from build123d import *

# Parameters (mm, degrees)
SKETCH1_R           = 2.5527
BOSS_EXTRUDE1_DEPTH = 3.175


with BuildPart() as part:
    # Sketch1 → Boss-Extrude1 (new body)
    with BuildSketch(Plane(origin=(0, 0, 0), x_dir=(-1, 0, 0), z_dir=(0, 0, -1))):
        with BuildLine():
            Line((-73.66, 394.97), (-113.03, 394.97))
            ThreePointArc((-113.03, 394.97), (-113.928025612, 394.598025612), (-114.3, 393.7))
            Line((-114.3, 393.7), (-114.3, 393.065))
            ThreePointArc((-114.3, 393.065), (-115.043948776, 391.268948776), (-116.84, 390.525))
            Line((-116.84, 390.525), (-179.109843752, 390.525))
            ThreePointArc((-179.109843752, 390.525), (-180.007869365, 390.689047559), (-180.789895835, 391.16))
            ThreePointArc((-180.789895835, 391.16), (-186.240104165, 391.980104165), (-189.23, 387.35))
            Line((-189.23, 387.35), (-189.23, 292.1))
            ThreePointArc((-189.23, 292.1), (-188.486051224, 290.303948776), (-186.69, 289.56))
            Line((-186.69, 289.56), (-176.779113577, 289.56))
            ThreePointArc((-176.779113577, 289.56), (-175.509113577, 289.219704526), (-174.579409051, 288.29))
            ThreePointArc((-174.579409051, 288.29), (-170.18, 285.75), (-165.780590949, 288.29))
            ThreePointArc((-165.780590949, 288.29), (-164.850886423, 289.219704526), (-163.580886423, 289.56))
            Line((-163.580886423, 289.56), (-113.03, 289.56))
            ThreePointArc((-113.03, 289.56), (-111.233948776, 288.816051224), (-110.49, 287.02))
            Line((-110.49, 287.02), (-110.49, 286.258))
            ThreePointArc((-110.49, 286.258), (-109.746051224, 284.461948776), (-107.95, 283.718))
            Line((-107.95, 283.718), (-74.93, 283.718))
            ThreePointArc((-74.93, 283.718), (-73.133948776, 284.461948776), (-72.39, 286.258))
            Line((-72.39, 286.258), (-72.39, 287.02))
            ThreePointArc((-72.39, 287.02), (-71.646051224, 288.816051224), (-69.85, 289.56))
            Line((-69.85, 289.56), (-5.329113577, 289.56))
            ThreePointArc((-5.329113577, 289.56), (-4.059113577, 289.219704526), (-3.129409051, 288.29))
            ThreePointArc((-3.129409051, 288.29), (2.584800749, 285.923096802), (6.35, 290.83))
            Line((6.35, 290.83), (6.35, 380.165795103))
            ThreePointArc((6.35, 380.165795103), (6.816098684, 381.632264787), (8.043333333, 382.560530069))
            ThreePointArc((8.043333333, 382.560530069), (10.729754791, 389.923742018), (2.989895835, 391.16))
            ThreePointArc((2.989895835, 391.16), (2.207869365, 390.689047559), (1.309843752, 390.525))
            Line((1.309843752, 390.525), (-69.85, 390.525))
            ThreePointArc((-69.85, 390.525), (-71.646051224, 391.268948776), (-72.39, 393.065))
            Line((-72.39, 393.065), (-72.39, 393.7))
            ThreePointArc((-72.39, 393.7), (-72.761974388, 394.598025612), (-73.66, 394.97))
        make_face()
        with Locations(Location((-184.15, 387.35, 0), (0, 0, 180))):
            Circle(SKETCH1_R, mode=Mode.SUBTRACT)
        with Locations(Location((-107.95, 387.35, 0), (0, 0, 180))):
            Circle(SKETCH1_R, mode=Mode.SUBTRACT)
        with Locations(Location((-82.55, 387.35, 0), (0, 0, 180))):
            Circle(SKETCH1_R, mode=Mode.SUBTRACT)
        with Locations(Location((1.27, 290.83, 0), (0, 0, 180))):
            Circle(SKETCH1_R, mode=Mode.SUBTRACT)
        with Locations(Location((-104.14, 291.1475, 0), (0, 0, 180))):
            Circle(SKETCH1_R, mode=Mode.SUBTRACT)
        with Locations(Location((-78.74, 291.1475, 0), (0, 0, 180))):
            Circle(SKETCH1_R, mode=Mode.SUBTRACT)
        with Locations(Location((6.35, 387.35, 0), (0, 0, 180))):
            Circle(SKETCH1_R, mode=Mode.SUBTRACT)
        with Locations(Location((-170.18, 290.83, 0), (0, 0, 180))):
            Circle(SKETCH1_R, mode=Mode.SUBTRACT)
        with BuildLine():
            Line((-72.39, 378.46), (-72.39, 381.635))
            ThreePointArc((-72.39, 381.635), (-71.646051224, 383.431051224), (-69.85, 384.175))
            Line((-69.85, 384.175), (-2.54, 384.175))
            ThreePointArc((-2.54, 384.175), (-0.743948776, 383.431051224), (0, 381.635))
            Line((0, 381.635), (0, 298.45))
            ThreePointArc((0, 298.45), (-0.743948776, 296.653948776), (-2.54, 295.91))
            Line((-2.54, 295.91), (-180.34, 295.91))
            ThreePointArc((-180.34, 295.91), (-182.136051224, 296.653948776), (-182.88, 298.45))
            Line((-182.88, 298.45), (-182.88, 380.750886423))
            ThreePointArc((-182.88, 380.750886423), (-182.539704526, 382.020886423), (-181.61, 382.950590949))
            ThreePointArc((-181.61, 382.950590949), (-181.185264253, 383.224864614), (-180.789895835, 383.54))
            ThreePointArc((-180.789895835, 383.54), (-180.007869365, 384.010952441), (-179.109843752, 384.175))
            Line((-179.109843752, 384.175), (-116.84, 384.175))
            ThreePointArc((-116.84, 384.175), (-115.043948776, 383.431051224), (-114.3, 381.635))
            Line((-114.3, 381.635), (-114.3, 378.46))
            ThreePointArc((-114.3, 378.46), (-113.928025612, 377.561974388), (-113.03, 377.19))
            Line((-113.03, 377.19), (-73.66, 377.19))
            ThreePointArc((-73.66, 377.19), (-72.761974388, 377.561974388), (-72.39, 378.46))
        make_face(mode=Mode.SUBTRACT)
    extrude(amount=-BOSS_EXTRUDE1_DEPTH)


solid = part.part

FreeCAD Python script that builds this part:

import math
import FreeCAD as App
import Part
import Sketcher
Q = App.Units.Quantity

doc = App.newDocument("Part")
body = doc.addObject("PartDesign::Body", "Body")

# Sketch on XY plane
sketch1 = body.newObject("Sketcher::SketchObject", "Sketch")
sketch1.AttachmentSupport = (doc.getObject("XY_Plane"), [""])
sketch1.MapMode = "FlatFace"
sketch1.addGeometry([
    Part.LineSegment(App.Vector(73.7, 395, 0), App.Vector(113, 395, 0)),  # 0
    Part.ArcOfCircle(Part.Circle(App.Vector(113, 393.7, 0), App.Vector(0, 0, 1), 1.3), math.radians(0), math.radians(90)),  # 1
    Part.LineSegment(App.Vector(114.3, 393.7, 0), App.Vector(114.3, 393.1, 0)),  # 2
    Part.ArcOfCircle(Part.Circle(App.Vector(116.8, 393.1, 0), App.Vector(0, 0, 1), 2.5), math.radians(-180), math.radians(-90)),  # 3
    Part.LineSegment(App.Vector(116.8, 390.5, 0), App.Vector(179.1, 390.5, 0)),  # 4
    Part.ArcOfCircle(Part.Circle(App.Vector(179.1, 393.1, 0), App.Vector(0, 0, 1), 2.5), math.radians(-90), math.radians(-49)),  # 5
    Part.ArcOfCircle(Part.Circle(App.Vector(184.2, 387.4, 0), App.Vector(0, 0, 1), 5.1), math.radians(0), math.radians(131)),  # 6
    Part.LineSegment(App.Vector(189.2, 387.4, 0), App.Vector(189.2, 292.1, 0)),  # 7
    Part.ArcOfCircle(Part.Circle(App.Vector(186.7, 292.1, 0), App.Vector(0, 0, 1), 2.5), math.radians(-90), math.radians(0)),  # 8
    Part.LineSegment(App.Vector(186.7, 289.6, 0), App.Vector(176.8, 289.6, 0)),  # 9
    Part.ArcOfCircle(Part.Circle(App.Vector(176.8, 287, 0), App.Vector(0, 0, 1), 2.5), math.radians(90), math.radians(150)),  # 10
    Part.ArcOfCircle(Part.Circle(App.Vector(170.2, 290.8, 0), App.Vector(0, 0, 1), 5.1), math.radians(-150), math.radians(-30)),  # 11
    Part.ArcOfCircle(Part.Circle(App.Vector(163.6, 287, 0), App.Vector(0, 0, 1), 2.5), math.radians(30), math.radians(90)),  # 12
    Part.LineSegment(App.Vector(163.6, 289.6, 0), App.Vector(113, 289.6, 0)),  # 13
    Part.ArcOfCircle(Part.Circle(App.Vector(113, 287, 0), App.Vector(0, 0, 1), 2.5), math.radians(90), math.radians(180)),  # 14
    Part.LineSegment(App.Vector(110.5, 287, 0), App.Vector(110.5, 286.3, 0)),  # 15
    Part.ArcOfCircle(Part.Circle(App.Vector(107.9, 286.3, 0), App.Vector(0, 0, 1), 2.5), math.radians(-90), math.radians(0)),  # 16
    Part.LineSegment(App.Vector(108, 283.7, 0), App.Vector(74.9, 283.7, 0)),  # 17
    Part.ArcOfCircle(Part.Circle(App.Vector(74.9, 286.3, 0), App.Vector(0, 0, 1), 2.5), math.radians(-180), math.radians(-90)),  # 18
    Part.LineSegment(App.Vector(72.4, 286.3, 0), App.Vector(72.4, 287, 0)),  # 19
    Part.ArcOfCircle(Part.Circle(App.Vector(69.8, 287, 0), App.Vector(0, 0, 1), 2.5), math.radians(0), math.radians(90)),  # 20
    Part.LineSegment(App.Vector(69.8, 289.6, 0), App.Vector(5.3, 289.6, 0)),  # 21
    Part.ArcOfCircle(Part.Circle(App.Vector(5.3, 287, 0), App.Vector(0, 0, 1), 2.5), math.radians(90), math.radians(150)),  # 22
    Part.ArcOfCircle(Part.Circle(App.Vector(-1.3, 290.8, 0), App.Vector(0, 0, 1), 5.1), math.radians(180), math.radians(330)),  # 23
    Part.LineSegment(App.Vector(-6.3, 290.8, 0), App.Vector(-6.3, 380.2, 0)),  # 24
    Part.ArcOfCircle(Part.Circle(App.Vector(-8.9, 380.2, 0), App.Vector(0, 0, 1), 2.5), math.radians(0), math.radians(71)),  # 25
    Part.ArcOfCircle(Part.Circle(App.Vector(-6.3, 387.4, 0), App.Vector(0, 0, 1), 5.1), math.radians(49), math.radians(251)),  # 26
    Part.ArcOfCircle(Part.Circle(App.Vector(-1.3, 393.1, 0), App.Vector(0, 0, 1), 2.5), math.radians(-131), math.radians(-90)),  # 27
    Part.LineSegment(App.Vector(-1.3, 390.5, 0), App.Vector(69.8, 390.5, 0)),  # 28
    Part.ArcOfCircle(Part.Circle(App.Vector(69.8, 393.1, 0), App.Vector(0, 0, 1), 2.5), math.radians(-90), math.radians(0)),  # 29
    Part.LineSegment(App.Vector(72.4, 393.1, 0), App.Vector(72.4, 393.7, 0)),  # 30
    Part.ArcOfCircle(Part.Circle(App.Vector(73.7, 393.7, 0), App.Vector(0, 0, 1), 1.3), math.radians(90), math.radians(180)),  # 31
    Part.Circle(App.Vector(170.2, 290.8, 0), App.Vector(0, 0, 1), 2.6),  # 32
    Part.Circle(App.Vector(104.1, 291.1, 0), App.Vector(0, 0, 1), 2.6),  # 33
    Part.Circle(App.Vector(78.7, 291.1, 0), App.Vector(0, 0, 1), 2.6),  # 34
    Part.Circle(App.Vector(-1.3, 290.8, 0), App.Vector(0, 0, 1), 2.6),  # 35
    Part.ArcOfCircle(Part.Circle(App.Vector(73.7, 378.5, 0), App.Vector(0, 0, 1), 1.3), math.radians(180), math.radians(270)),  # 36
    Part.LineSegment(App.Vector(72.4, 378.5, 0), App.Vector(72.4, 381.6, 0)),  # 37
    Part.ArcOfCircle(Part.Circle(App.Vector(69.8, 381.6, 0), App.Vector(0, 0, 1), 2.5), math.radians(0), math.radians(90)),  # 38
    Part.LineSegment(App.Vector(69.8, 384.2, 0), App.Vector(2.5, 384.2, 0)),  # 39
    Part.ArcOfCircle(Part.Circle(App.Vector(2.5, 381.6, 0), App.Vector(0, 0, 1), 2.5), math.radians(90), math.radians(180)),  # 40
    Part.LineSegment(App.Vector(0, 381.6, 0), App.Vector(0, 298.4, 0)),  # 41
    Part.ArcOfCircle(Part.Circle(App.Vector(2.5, 298.5, 0), App.Vector(0, 0, 1), 2.5), math.radians(-180), math.radians(-90)),  # 42
    Part.LineSegment(App.Vector(2.5, 295.9, 0), App.Vector(180.3, 295.9, 0)),  # 43
    Part.ArcOfCircle(Part.Circle(App.Vector(180.3, 298.5, 0), App.Vector(0, 0, 1), 2.5), math.radians(-90), math.radians(0)),  # 44
    Part.LineSegment(App.Vector(182.9, 298.4, 0), App.Vector(182.9, 380.8, 0)),  # 45
    Part.ArcOfCircle(Part.Circle(App.Vector(180.3, 380.8, 0), App.Vector(0, 0, 1), 2.5), math.radians(0), math.radians(60)),  # 46
    Part.ArcOfCircle(Part.Circle(App.Vector(184.1, 387.3, 0), App.Vector(0, 0, 1), 5.1), math.radians(-131.41), math.radians(-120)),  # 47
    Part.ArcOfCircle(Part.Circle(App.Vector(179.1, 381.6, 0), App.Vector(0, 0, 1), 2.5), math.radians(49), math.radians(90)),  # 48
    Part.LineSegment(App.Vector(179.1, 384.2, 0), App.Vector(116.8, 384.2, 0)),  # 49
    Part.ArcOfCircle(Part.Circle(App.Vector(116.8, 381.6, 0), App.Vector(0, 0, 1), 2.5), math.radians(90), math.radians(180)),  # 50
    Part.LineSegment(App.Vector(114.3, 381.6, 0), App.Vector(114.3, 378.5, 0)),  # 51
    Part.ArcOfCircle(Part.Circle(App.Vector(113, 378.5, 0), App.Vector(0, 0, 1), 1.3), math.radians(-90), math.radians(0)),  # 52
    Part.LineSegment(App.Vector(113, 377.2, 0), App.Vector(73.7, 377.2, 0)),  # 53
    Part.Circle(App.Vector(184.2, 387.4, 0), App.Vector(0, 0, 1), 2.6),  # 54
    Part.Circle(App.Vector(108, 387.4, 0), App.Vector(0, 0, 1), 2.6),  # 55
    Part.Circle(App.Vector(82.5, 387.4, 0), App.Vector(0, 0, 1), 2.6),  # 56
    Part.Circle(App.Vector(-6.3, 387.4, 0), App.Vector(0, 0, 1), 2.6),  # 57
], False)
sketch1.addConstraint([
    Sketcher.Constraint("Tangent", 0, 2, 1, 2),
    Sketcher.Constraint("Tangent", 1, 1, 2, 1),
    Sketcher.Constraint("Tangent", 2, 2, 3, 1),
    Sketcher.Constraint("Tangent", 3, 2, 4, 1),
    Sketcher.Constraint("Tangent", 4, 2, 5, 1),
    Sketcher.Constraint("Tangent", 5, 2, 6, 2),
    Sketcher.Constraint("Tangent", 6, 1, 7, 1),
    Sketcher.Constraint("Tangent", 7, 2, 8, 2),
    Sketcher.Constraint("Tangent", 8, 1, 9, 1),
    Sketcher.Constraint("Tangent", 9, 2, 10, 1),
    Sketcher.Constraint("Tangent", 10, 2, 11, 2),
    Sketcher.Constraint("Tangent", 11, 1, 12, 1),
    Sketcher.Constraint("Tangent", 12, 2, 13, 1),
    Sketcher.Constraint("Tangent", 13, 2, 14, 1),
    Sketcher.Constraint("Tangent", 14, 2, 15, 1),
    Sketcher.Constraint("Tangent", 15, 2, 16, 2),
    Sketcher.Constraint("Tangent", 16, 1, 17, 1),
    Sketcher.Constraint("Tangent", 17, 2, 18, 2),
    Sketcher.Constraint("Tangent", 18, 1, 19, 1),
    Sketcher.Constraint("Tangent", 19, 2, 20, 1),
    Sketcher.Constraint("Tangent", 20, 2, 21, 1),
    Sketcher.Constraint("Tangent", 21, 2, 22, 1),
    Sketcher.Constraint("Tangent", 22, 2, 23, 2),
    Sketcher.Constraint("Tangent", 23, 1, 24, 1),
    Sketcher.Constraint("Tangent", 24, 2, 25, 1),
    Sketcher.Constraint("Tangent", 25, 2, 26, 2),
    Sketcher.Constraint("Tangent", 26, 1, 27, 1),
    Sketcher.Constraint("Tangent", 27, 2, 28, 1),
    Sketcher.Constraint("Tangent", 28, 2, 29, 1),
    Sketcher.Constraint("Tangent", 29, 2, 30, 1),
    Sketcher.Constraint("Tangent", 30, 2, 31, 2),
    Sketcher.Constraint("Tangent", 31, 1, 0, 1),
    Sketcher.Constraint("Tangent", 36, 1, 37, 1),
    Sketcher.Constraint("Tangent", 37, 2, 38, 1),
    Sketcher.Constraint("Tangent", 38, 2, 39, 1),
    Sketcher.Constraint("Tangent", 39, 2, 40, 1),
    Sketcher.Constraint("Tangent", 40, 2, 41, 1),
    Sketcher.Constraint("Tangent", 41, 2, 42, 1),
    Sketcher.Constraint("Tangent", 42, 2, 43, 1),
    Sketcher.Constraint("Tangent", 43, 2, 44, 1),
    Sketcher.Constraint("Tangent", 44, 2, 45, 1),
    Sketcher.Constraint("Tangent", 45, 2, 46, 1),
    Sketcher.Constraint("Tangent", 46, 2, 47, 2),
    Sketcher.Constraint("Tangent", 47, 1, 48, 1),
    Sketcher.Constraint("Tangent", 48, 2, 49, 1),
    Sketcher.Constraint("Tangent", 49, 2, 50, 1),
    Sketcher.Constraint("Tangent", 50, 2, 51, 1),
    Sketcher.Constraint("Tangent", 51, 2, 52, 2),
    Sketcher.Constraint("Tangent", 52, 1, 53, 1),
    Sketcher.Constraint("Tangent", 53, 2, 36, 2),
    Sketcher.Constraint("Horizontal", 0),
    Sketcher.Constraint("Vertical", 2),
    Sketcher.Constraint("Horizontal", 4),
    Sketcher.Constraint("Vertical", 7),
    Sketcher.Constraint("Horizontal", 9),
    Sketcher.Constraint("Horizontal", 13),
    Sketcher.Constraint("Vertical", 15),
    Sketcher.Constraint("Horizontal", 17),
    Sketcher.Constraint("Vertical", 19),
    Sketcher.Constraint("Horizontal", 21),
    Sketcher.Constraint("Vertical", 24),
    Sketcher.Constraint("Horizontal", 28),
    Sketcher.Constraint("Vertical", 30),
    Sketcher.Constraint("Vertical", 37),
    Sketcher.Constraint("Horizontal", 39),
    Sketcher.Constraint("Vertical", 41),
    Sketcher.Constraint("Horizontal", 43),
    Sketcher.Constraint("Vertical", 45),
    Sketcher.Constraint("Horizontal", 49),
    Sketcher.Constraint("Vertical", 51),
    Sketcher.Constraint("Horizontal", 53),
    Sketcher.Constraint("Coincident", 32, 3, 11, 3),
    Sketcher.Constraint("Coincident", 35, 3, 23, 3),
    Sketcher.Constraint("Coincident", 47, 3, 6, 3),
    Sketcher.Constraint("Coincident", 54, 3, 6, 3),
    Sketcher.Constraint("Coincident", 57, 3, 26, 3),
    Sketcher.Constraint("Equal", 3, 5),
    Sketcher.Constraint("Equal", 5, 8),
    Sketcher.Constraint("Equal", 8, 10),
    Sketcher.Constraint("Equal", 6, 11),
    Sketcher.Constraint("Equal", 10, 12),
    Sketcher.Constraint("Equal", 12, 14),
    Sketcher.Constraint("Equal", 14, 16),
    Sketcher.Constraint("Equal", 16, 18),
    Sketcher.Constraint("Equal", 18, 20),
    Sketcher.Constraint("Equal", 20, 22),
    Sketcher.Constraint("Equal", 11, 23),
    Sketcher.Constraint("Equal", 22, 25),
    Sketcher.Constraint("Equal", 23, 26),
    Sketcher.Constraint("Equal", 25, 27),
    Sketcher.Constraint("Equal", 27, 29),
    Sketcher.Constraint("Equal", 1, 31),
    Sketcher.Constraint("Equal", 32, 33),
    Sketcher.Constraint("Equal", 33, 34),
    Sketcher.Constraint("Equal", 34, 35),
    Sketcher.Constraint("Equal", 31, 36),
    Sketcher.Constraint("Equal", 29, 38),
    Sketcher.Constraint("Equal", 38, 40),
    Sketcher.Constraint("Equal", 40, 42),
    Sketcher.Constraint("Equal", 42, 44),
    Sketcher.Constraint("Equal", 44, 46),
    Sketcher.Constraint("Equal", 26, 47),
    Sketcher.Constraint("Equal", 46, 48),
    Sketcher.Constraint("Equal", 48, 50),
    Sketcher.Constraint("Equal", 36, 52),
    Sketcher.Constraint("Equal", 35, 54),
    Sketcher.Constraint("Equal", 54, 55),
    Sketcher.Constraint("Equal", 55, 56),
    Sketcher.Constraint("Equal", 56, 57),
    Sketcher.Constraint("PointOnObject", 40, 2, -2),
    Sketcher.Constraint("Horizontal", 10, 3, 12, 3),
    Sketcher.Constraint("Horizontal", 14, 3, 20, 3),
    Sketcher.Constraint("Horizontal", 11, 3, 23, 3),
    Sketcher.Constraint("Horizontal", 6, 3, 26, 3),
    Sketcher.Constraint("Horizontal", 5, 3, 27, 3),
    Sketcher.Constraint("Horizontal", 33, 3, 34, 3),
    Sketcher.Constraint("Horizontal", 40, 3, 48, 3),
    Sketcher.Constraint("Horizontal", 54, 3, 55, 3),
    Sketcher.Constraint("Horizontal", 55, 3, 56, 3),
    Sketcher.Constraint("Vertical", 1, 3, 14, 3),
    Sketcher.Constraint("Vertical", 20, 3, 29, 3),
    Sketcher.Constraint("Vertical", 31, 3, 36, 3),
    Sketcher.Constraint("Vertical", 5, 3, 48, 3),
    Sketcher.Constraint("Vertical", 3, 3, 50, 3),
    Sketcher.Constraint("Vertical", 16, 3, 55, 3),
    Sketcher.Constraint("Vertical", 57, 3, 23, 1),
    Sketcher.Constraint("Radius", 3, Q("0.1 in")),
    Sketcher.Constraint("Radius", 6, Q("0.2 in")),
    Sketcher.Constraint("DistanceX", 43, 1, 43, 2, Q("7 in")),
    Sketcher.Constraint("Radius", 1, Q("0.05 in")),
    Sketcher.Constraint("Diameter", 32, Q("0.201 in")),
    Sketcher.Constraint("DistanceX", 17, 2, 17, 1, Q("1.3 in")),
    Sketcher.Constraint("DistanceX", 39, 2, 39, 1, Q("2.65 in")),
    Sketcher.Constraint("DistanceY", 7, 2, 7, 1, Q("3.75 in")),
    Sketcher.Constraint("DistanceY", 15, 2, 15, 1, Q("0.03 in")),
    Sketcher.Constraint("DistanceY", -1, 1, 1, 3, Q("15.5 in")),
    Sketcher.Constraint("DistanceY", -1, 1, 8, 3, Q("11.5 in")),
    Sketcher.Constraint("DistanceX", -1, 1, 11, 3, Q("6.7 in")),
    Sketcher.Constraint("DistanceX", -1, 1, 33, 3, Q("4.1 in")),
    Sketcher.Constraint("DistanceX", -1, 1, 34, 3, Q("3.1 in")),
    Sketcher.Constraint("DistanceY", -1, 1, 36, 3, Q("14.9 in")),
    Sketcher.Constraint("DistanceY", -1, 1, 5, 2, Q("15.4 in")),
    Sketcher.Constraint("DistanceY", 41, 2, 41, 1, Q("3.275 in")),
    Sketcher.Constraint("DistanceX", -1, 1, 6, 3, Q("7.25 in")),
    Sketcher.Constraint("DistanceY", -1, 1, 11, 3, Q("11.45 in")),
    Sketcher.Constraint("DistanceX", 23, 3, -1, 1, Q("0.05 in")),
    Sketcher.Constraint("DistanceX", -1, 1, 56, 3, Q("3.25 in")),
    Sketcher.Constraint("DistanceY", -1, 1, 33, 3, Q("11.4625 in")),
])
pad1 = body.newObject("PartDesign::Pad", "Pad")
pad1.Profile = sketch1
pad1.Length = Q("0.125 in")

doc.recompute()
